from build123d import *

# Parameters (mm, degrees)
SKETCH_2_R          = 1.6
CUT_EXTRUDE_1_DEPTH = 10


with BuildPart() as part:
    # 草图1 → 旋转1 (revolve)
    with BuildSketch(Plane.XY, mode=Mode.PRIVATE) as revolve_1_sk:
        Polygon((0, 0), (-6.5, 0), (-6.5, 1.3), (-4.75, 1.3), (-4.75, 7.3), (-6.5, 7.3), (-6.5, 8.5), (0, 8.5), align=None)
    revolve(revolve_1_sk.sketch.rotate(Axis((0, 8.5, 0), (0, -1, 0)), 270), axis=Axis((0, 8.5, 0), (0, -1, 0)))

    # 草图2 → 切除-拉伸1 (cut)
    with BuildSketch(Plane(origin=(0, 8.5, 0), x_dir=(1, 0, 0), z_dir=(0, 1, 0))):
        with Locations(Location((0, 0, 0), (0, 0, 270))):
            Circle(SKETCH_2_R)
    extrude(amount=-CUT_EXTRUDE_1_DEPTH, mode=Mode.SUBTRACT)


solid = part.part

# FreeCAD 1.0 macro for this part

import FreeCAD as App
import Part
import Sketcher
from FreeCAD import Vector
Q = App.Units.Quantity

doc = App.newDocument("Part")
body = doc.addObject("PartDesign::Body", "Body")

# Sketch on XY plane
sketch1 = body.newObject("Sketcher::SketchObject", "Sketch")
sketch1.AttachmentSupport = (doc.getObject("XY_Plane"), [""])
sketch1.MapMode = "FlatFace"
sketch1.addGeometry(Part.LineSegment(Vector(-6.5, 0, 0), Vector(0, 0, 0)), False)
sketch1.addGeometry(Part.LineSegment(Vector(0, 0, 0), Vector(0, 8.5, 0)), False)
sketch1.addGeometry(Part.LineSegment(Vector(0, 8.5, 0), Vector(-6.5, 8.5, 0)), False)
sketch1.addGeometry(Part.LineSegment(Vector(-6.5, 8.5, 0), Vector(-6.5, 7.3, 0)), False)
sketch1.addGeometry(Part.LineSegment(Vector(-6.5, 7.3, 0), Vector(-4.8, 7.3, 0)), False)
sketch1.addGeometry(Part.LineSegment(Vector(-4.8, 7.3, 0), Vector(-4.8, 1.3, 0)), False)
sketch1.addGeometry(Part.LineSegment(Vector(-4.8, 1.3, 0), Vector(-6.5, 1.3, 0)), False)
sketch1.addGeometry(Part.LineSegment(Vector(-6.5, 1.3, 0), Vector(-6.5, 0, 0)), False)
sketch1.addConstraint(Sketcher.Constraint("Coincident", 0, 2, 1, 1))
sketch1.addConstraint(Sketcher.Constraint("Coincident", 1, 2, 2, 1))
sketch1.addConstraint(Sketcher.Constraint("Coincident", 2, 2, 3, 1))
sketch1.addConstraint(Sketcher.Constraint("Coincident", 3, 2, 4, 1))
sketch1.addConstraint(Sketcher.Constraint("Coincident", 4, 2, 5, 1))
sketch1.addConstraint(Sketcher.Constraint("Coincident", 5, 2, 6, 1))
sketch1.addConstraint(Sketcher.Constraint("Coincident", 6, 2, 7, 1))
sketch1.addConstraint(Sketcher.Constraint("Coincident", 7, 2, 0, 1))
sketch1.addConstraint(Sketcher.Constraint("Horizontal", 0))
sketch1.addConstraint(Sketcher.Constraint("Vertical", 1))
sketch1.addConstraint(Sketcher.Constraint("Horizontal", 2))
sketch1.addConstraint(Sketcher.Constraint("Vertical", 3))
sketch1.addConstraint(Sketcher.Constraint("Horizontal", 4))
sketch1.addConstraint(Sketcher.Constraint("Vertical", 5))
sketch1.addConstraint(Sketcher.Constraint("Horizontal", 6))
sketch1.addConstraint(Sketcher.Constraint("Vertical", 7))
sketch1.addConstraint(Sketcher.Constraint("Coincident", 0, 2, -1, 1))
sketch1.addConstraint(Sketcher.Constraint("Vertical", 3, 2, 6, 2))
sketch1.addConstraint(Sketcher.Constraint("DistanceY", 5, 2, 5, 1, Q("6 mm")))
sketch1.addConstraint(Sketcher.Constraint("DistanceX", 0, 1, 0, 2, Q("6.5 mm")))
sketch1.addConstraint(Sketcher.Constraint("DistanceY", 1, 1, 1, 2, Q("8.5 mm")))
sketch1.addConstraint(Sketcher.Constraint("DistanceY", 3, 2, 3, 1, Q("1.2 mm")))
sketch1.addConstraint(Sketcher.Constraint("DistanceX", 4, 1, 4, 2, Q("1.75 mm")))
revolution = body.newObject("PartDesign::Revolution", "Revolution")
revolution.Profile = sketch1
revolution.ReferenceAxis = (sketch1, ["V_Axis"])
revolution.Angle = 360

# Sketch on XZ plane
sketch2 = body.newObject("Sketcher::SketchObject", "Sketch001")
sketch2.AttachmentSupport = (doc.getObject("XZ_Plane"), [""])
sketch2.MapMode = "FlatFace"
sketch2.AttachmentOffset = App.Placement(Vector(0, 0, -8.5), App.Rotation())
sketch2.addGeometry(Part.Circle(Vector(0, 0, 0), Vector(0, 0, 1), 1.6), False)
sketch2.addConstraint(Sketcher.Constraint("Coincident", 0, 3, -1, 1))
sketch2.addConstraint(Sketcher.Constraint("Diameter", 0, Q("3.2 mm")))
pocket1 = body.newObject("PartDesign::Pocket", "Pocket")
pocket1.Profile = sketch2
pocket1.Length = 10
pocket1.Reversed = True

doc.recompute()
